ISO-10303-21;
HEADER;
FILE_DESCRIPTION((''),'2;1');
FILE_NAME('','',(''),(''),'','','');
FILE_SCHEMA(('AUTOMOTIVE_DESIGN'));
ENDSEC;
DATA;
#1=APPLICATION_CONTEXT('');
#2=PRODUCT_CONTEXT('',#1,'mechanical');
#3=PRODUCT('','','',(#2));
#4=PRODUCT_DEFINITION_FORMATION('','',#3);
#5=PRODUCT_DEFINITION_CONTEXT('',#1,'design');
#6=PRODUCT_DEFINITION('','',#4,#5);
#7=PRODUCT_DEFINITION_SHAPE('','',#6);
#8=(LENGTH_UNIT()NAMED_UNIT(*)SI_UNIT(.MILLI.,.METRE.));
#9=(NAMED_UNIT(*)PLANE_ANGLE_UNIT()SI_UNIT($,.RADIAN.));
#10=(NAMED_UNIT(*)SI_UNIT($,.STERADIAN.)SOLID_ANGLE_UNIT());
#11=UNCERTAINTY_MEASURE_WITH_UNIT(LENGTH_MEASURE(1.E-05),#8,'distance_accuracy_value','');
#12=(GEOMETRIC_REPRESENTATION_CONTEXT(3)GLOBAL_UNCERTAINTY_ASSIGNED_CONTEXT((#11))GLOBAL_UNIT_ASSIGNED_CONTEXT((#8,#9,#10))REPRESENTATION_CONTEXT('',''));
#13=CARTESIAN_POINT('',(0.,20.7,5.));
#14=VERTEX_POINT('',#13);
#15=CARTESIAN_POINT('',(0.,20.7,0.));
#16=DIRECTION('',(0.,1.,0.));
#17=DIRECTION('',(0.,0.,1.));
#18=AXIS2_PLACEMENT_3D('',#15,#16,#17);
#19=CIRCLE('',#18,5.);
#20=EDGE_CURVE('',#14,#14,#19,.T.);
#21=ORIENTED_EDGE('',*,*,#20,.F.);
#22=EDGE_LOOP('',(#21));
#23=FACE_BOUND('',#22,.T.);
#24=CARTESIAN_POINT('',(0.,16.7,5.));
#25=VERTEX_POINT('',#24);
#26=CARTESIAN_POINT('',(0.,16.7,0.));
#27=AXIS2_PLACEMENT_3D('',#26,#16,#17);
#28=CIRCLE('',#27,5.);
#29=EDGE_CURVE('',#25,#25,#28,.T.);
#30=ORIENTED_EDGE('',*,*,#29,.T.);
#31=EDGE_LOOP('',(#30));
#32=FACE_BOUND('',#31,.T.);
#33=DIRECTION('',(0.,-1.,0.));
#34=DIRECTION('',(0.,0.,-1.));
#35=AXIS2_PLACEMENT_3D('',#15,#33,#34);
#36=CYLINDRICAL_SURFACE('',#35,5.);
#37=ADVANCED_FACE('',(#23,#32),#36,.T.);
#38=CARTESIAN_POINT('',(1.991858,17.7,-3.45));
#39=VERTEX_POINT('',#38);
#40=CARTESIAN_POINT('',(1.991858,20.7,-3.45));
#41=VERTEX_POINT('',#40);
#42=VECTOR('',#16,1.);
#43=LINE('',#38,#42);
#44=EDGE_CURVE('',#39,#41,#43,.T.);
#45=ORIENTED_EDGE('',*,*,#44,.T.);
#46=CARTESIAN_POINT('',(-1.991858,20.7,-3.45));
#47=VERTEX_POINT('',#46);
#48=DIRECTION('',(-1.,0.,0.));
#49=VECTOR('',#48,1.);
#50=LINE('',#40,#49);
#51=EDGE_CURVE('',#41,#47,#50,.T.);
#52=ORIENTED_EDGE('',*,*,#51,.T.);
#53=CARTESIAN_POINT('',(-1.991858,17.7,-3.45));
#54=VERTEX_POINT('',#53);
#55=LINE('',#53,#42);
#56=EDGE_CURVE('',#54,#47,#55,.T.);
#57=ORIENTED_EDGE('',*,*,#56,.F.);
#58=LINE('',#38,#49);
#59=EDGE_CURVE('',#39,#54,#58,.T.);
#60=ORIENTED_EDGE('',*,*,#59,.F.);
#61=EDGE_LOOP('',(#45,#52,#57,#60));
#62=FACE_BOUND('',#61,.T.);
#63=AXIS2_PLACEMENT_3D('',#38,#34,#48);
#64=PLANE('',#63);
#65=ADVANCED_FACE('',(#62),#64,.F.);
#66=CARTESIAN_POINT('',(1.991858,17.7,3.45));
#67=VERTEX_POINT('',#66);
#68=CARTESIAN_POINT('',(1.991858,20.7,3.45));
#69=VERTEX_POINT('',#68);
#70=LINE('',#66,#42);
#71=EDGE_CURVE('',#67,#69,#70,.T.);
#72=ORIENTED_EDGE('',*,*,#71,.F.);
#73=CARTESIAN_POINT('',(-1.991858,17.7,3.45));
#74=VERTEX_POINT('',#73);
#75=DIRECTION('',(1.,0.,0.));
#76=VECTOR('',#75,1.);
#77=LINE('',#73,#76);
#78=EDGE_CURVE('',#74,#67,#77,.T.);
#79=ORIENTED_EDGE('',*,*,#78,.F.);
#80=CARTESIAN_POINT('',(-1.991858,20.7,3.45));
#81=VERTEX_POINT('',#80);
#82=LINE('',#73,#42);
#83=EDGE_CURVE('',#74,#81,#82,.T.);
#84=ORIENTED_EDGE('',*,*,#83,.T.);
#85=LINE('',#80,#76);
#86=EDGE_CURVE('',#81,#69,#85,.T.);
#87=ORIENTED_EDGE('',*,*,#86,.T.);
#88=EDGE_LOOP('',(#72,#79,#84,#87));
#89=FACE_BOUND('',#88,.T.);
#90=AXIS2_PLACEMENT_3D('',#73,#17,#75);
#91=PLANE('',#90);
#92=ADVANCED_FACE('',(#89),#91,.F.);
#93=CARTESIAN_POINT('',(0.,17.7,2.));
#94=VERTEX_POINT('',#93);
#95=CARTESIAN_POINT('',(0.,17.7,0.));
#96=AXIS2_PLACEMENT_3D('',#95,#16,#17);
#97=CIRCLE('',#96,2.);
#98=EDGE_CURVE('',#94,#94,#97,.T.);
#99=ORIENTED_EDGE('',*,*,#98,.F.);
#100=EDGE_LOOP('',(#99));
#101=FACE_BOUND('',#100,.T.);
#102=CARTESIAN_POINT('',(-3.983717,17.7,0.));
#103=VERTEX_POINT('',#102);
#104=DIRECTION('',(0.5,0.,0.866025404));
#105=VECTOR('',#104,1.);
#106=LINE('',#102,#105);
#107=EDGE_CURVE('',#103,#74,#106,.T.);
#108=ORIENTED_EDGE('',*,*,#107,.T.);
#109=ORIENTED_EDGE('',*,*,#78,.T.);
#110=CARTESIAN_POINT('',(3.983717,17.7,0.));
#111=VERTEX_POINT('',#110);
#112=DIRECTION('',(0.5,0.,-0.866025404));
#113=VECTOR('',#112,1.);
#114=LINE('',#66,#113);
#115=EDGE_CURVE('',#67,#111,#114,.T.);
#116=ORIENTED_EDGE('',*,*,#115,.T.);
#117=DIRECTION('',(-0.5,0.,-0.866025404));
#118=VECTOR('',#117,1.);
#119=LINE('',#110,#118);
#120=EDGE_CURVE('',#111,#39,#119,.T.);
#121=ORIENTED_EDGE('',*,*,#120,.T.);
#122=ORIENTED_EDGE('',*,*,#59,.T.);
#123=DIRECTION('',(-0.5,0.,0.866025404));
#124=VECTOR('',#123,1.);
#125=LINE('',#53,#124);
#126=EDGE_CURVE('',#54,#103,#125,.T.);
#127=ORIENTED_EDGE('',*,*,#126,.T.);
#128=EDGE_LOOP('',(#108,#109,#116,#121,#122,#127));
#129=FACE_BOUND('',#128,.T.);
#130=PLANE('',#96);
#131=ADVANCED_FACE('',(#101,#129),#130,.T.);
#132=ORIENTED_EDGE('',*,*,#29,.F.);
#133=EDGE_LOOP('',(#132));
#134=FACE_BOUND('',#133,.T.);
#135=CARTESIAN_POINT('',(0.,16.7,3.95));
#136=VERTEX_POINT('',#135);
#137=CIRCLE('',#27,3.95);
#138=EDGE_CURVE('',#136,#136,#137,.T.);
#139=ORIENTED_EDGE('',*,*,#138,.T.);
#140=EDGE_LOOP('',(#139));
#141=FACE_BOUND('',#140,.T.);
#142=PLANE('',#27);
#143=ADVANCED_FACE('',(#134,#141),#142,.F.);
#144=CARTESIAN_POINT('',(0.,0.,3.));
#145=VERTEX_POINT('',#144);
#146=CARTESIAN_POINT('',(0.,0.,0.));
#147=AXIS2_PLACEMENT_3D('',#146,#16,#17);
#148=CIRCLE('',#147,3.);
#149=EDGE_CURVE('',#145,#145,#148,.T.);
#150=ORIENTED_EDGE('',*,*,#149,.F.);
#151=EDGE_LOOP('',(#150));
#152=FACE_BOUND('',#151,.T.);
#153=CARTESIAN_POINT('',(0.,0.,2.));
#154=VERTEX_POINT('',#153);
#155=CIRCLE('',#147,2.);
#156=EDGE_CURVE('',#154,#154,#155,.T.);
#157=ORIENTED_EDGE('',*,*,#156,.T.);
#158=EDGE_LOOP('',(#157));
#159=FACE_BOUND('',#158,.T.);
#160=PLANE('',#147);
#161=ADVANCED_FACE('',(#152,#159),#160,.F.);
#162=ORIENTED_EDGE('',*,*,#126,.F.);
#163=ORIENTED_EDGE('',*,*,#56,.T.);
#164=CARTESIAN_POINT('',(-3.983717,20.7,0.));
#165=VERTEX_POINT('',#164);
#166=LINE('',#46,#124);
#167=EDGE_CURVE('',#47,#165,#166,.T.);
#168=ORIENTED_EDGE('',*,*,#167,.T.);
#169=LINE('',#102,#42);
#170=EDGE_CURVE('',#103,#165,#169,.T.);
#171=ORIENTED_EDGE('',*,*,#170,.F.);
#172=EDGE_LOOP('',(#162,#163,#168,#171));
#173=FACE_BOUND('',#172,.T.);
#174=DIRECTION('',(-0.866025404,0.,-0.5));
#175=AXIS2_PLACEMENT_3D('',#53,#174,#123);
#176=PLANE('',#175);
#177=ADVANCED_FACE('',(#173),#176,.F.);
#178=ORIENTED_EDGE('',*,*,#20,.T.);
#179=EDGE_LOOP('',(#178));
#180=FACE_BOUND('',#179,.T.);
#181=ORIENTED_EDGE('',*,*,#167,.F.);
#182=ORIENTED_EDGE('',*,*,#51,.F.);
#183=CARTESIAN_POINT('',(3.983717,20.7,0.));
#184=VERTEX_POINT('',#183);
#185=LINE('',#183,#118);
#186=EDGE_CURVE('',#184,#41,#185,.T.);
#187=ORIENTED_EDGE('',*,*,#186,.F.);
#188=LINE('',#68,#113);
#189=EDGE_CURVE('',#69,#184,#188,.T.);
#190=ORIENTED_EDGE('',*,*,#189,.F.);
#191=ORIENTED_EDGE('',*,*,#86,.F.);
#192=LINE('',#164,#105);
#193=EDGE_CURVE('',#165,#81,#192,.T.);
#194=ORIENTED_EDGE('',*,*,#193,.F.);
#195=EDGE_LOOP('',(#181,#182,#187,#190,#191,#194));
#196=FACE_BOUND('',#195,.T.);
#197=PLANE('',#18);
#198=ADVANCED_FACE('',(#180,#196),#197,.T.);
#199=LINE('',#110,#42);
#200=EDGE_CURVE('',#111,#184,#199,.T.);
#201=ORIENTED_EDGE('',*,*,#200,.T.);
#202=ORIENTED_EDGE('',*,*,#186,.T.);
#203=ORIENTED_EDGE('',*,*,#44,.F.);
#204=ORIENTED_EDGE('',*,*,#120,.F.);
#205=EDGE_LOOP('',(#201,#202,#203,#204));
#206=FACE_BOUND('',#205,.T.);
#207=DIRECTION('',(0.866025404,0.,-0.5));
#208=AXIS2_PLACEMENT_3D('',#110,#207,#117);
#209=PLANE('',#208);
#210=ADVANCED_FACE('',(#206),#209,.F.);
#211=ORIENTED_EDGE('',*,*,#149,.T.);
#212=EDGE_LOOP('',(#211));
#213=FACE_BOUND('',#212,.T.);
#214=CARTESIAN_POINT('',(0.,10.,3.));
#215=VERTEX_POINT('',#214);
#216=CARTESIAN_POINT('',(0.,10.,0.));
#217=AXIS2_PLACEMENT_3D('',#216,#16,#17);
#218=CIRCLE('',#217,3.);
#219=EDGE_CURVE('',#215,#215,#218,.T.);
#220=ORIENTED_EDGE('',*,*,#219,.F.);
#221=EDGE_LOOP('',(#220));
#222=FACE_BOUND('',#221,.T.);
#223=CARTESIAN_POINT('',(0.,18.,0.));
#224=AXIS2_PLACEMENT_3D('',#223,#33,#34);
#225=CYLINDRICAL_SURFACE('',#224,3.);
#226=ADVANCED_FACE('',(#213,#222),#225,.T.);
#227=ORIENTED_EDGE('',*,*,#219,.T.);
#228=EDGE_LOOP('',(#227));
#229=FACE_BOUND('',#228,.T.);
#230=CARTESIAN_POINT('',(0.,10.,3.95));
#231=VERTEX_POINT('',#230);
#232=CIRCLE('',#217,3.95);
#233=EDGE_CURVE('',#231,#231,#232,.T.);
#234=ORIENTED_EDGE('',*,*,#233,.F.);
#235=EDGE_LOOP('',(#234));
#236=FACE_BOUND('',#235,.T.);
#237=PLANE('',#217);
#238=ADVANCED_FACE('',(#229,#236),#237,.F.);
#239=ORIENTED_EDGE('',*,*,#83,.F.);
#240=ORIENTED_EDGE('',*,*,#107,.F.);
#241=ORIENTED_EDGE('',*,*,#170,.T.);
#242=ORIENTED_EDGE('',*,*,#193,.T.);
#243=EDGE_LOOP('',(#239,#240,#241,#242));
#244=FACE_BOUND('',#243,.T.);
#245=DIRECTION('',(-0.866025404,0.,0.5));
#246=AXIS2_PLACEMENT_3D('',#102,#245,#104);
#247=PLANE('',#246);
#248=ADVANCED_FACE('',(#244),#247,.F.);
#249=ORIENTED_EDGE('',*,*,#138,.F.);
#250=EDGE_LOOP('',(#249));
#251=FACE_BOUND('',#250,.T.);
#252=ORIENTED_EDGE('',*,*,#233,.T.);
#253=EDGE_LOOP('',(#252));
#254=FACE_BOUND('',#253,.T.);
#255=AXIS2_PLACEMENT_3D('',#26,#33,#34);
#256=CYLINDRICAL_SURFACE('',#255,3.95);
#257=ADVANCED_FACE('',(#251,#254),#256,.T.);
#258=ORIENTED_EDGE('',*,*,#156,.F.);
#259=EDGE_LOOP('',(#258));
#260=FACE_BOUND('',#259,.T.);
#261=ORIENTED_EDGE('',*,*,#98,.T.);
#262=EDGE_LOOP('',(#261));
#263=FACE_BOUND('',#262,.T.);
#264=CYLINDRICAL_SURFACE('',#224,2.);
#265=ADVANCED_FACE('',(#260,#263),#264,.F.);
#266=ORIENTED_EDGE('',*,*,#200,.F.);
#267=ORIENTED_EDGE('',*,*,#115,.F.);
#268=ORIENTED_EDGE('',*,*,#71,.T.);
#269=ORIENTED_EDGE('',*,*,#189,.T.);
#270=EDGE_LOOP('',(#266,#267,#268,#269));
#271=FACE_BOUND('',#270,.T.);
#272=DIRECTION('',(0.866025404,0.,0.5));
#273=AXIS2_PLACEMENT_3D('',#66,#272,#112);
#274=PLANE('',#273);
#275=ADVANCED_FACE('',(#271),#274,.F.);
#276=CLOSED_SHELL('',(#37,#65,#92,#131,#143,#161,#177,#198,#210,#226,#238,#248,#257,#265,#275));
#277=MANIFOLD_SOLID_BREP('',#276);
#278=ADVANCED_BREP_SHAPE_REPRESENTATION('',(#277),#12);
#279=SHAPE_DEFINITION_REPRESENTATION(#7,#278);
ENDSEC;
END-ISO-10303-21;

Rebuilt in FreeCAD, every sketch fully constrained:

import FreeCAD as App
import Part
import Sketcher
Q = App.Units.Quantity


def add_polygon(sketch, points):
    """Adds a closed chain of lines whose ends are joined by coincident constraints."""
    first, n = sketch.GeometryCount, len(points)
    for a, b in zip(points, points[1:] + points[:1]):
        sketch.addGeometry(Part.LineSegment(App.Vector(*a, 0), App.Vector(*b, 0)), False)
    for i in range(n):
        sketch.addConstraint(Sketcher.Constraint("Coincident", first + i, 2, first + (i + 1) % n, 1))

doc = App.newDocument("Part")
body = doc.addObject("PartDesign::Body", "Body")

# Sketch on XZ plane
sketch1 = body.newObject("Sketcher::SketchObject", "Sketch")
sketch1.AttachmentSupport = (doc.getObject("XZ_Plane"), [""])
sketch1.MapMode = "FlatFace"
sketch1.addGeometry([
    Part.Circle(App.Vector(0, 0, 0), App.Vector(0, 0, 1), 3),
    Part.Circle(App.Vector(0, 0, 0), App.Vector(0, 0, 1), 2),
], False)
sketch1.addConstraint([
    Sketcher.Constraint("Coincident", 0, 3, -1, 1),
    Sketcher.Constraint("Coincident", 1, 3, -1, 1),
    Sketcher.Constraint("Diameter", 0, Q("6 mm")),
    Sketcher.Constraint("Diameter", 1, Q("4 mm")),
])
pad1 = body.newObject("PartDesign::Pad", "Pad")
pad1.Profile = sketch1
pad1.Length = 18
pad1.Reversed = True

# Sketch on XZ plane
sketch2 = body.newObject("Sketcher::SketchObject", "Sketch001")
sketch2.AttachmentSupport = (doc.getObject("XZ_Plane"), [""])
sketch2.MapMode = "FlatFace"
sketch2.AttachmentOffset = App.Placement(App.Vector(0, 0, -10), App.Rotation())
sketch2.addGeometry([
    Part.Circle(App.Vector(0, 0, 0), App.Vector(0, 0, 1), 3.95),
    Part.Circle(App.Vector(0, 0, 0), App.Vector(0, 0, 1), 2),
], False)
sketch2.addConstraint([
    Sketcher.Constraint("Coincident", 0, 3, -1, 1),
    Sketcher.Constraint("Coincident", 1, 3, -1, 1),
    Sketcher.Constraint("Diameter", 1, Q("4 mm")),
    Sketcher.Constraint("Diameter", 0, Q("7.9 mm")),
])
pad2 = body.newObject("PartDesign::Pad", "Pad001")
pad2.Profile = sketch2
pad2.Length = 6.7
pad2.Reversed = True

# Sketch on XZ plane
sketch3 = body.newObject("Sketcher::SketchObject", "Sketch002")
sketch3.AttachmentSupport = (doc.getObject("XZ_Plane"), [""])
sketch3.MapMode = "FlatFace"
sketch3.AttachmentOffset = App.Placement(App.Vector(0, 0, -16.7), App.Rotation())
sketch3.addGeometry([
    Part.Circle(App.Vector(0, 0, 0), App.Vector(0, 0, 1), 5),
    Part.Circle(App.Vector(0, 0, 0), App.Vector(0, 0, 1), 2),
], False)
sketch3.addConstraint([
    Sketcher.Constraint("Coincident", 0, 3, -1, 1),
    Sketcher.Constraint("Coincident", 1, 3, -1, 1),
    Sketcher.Constraint("Diameter", 0, Q("10 mm")),
    Sketcher.Constraint("Diameter", 1, Q("4 mm")),
])
pad3 = body.newObject("PartDesign::Pad", "Pad002")
pad3.Profile = sketch3
pad3.Length = 4
pad3.Reversed = True

# Sketch on XZ plane
sketch4 = body.newObject("Sketcher::SketchObject", "Sketch003")
sketch4.AttachmentSupport = (doc.getObject("XZ_Plane"), [""])
sketch4.MapMode = "FlatFace"
sketch4.AttachmentOffset = App.Placement(App.Vector(0, 0, -20.7), App.Rotation())
add_polygon(sketch4, [(3.983717, 0), (1.991858, -3.45), (-1.991858, -3.45), (-3.983717, 0), (-1.991858, 3.45), (1.991858, 3.45)])  # lines 0-5
sketch4.addConstraint([
    Sketcher.Constraint("Horizontal", 1),
    Sketcher.Constraint("Horizontal", 4),
    Sketcher.Constraint("Symmetric", 0, 2, 3, 2, -1, 1),
    Sketcher.Constraint("Symmetric", 2, 2, 5, 2, -1, 1),
    Sketcher.Constraint("PointOnObject", 2, 2, -1),
    Sketcher.Constraint("Parallel", 2, 5),
    Sketcher.Constraint("Vertical", 1, 2, 3, 2),
    Sketcher.Constraint("Angle", 0, Q("-120 deg")),
    Sketcher.Constraint("DistanceY", 1, 2, 3, 2, Q("6.9 mm")),
    Sketcher.Constraint("DistanceX", 1, 2, 1, 1, Q("3.983717 mm")),
])
pocket1 = body.newObject("PartDesign::Pocket", "Pocket")
pocket1.Profile = sketch4
pocket1.Length = 3
pocket1.Reversed = True

doc.recompute()
